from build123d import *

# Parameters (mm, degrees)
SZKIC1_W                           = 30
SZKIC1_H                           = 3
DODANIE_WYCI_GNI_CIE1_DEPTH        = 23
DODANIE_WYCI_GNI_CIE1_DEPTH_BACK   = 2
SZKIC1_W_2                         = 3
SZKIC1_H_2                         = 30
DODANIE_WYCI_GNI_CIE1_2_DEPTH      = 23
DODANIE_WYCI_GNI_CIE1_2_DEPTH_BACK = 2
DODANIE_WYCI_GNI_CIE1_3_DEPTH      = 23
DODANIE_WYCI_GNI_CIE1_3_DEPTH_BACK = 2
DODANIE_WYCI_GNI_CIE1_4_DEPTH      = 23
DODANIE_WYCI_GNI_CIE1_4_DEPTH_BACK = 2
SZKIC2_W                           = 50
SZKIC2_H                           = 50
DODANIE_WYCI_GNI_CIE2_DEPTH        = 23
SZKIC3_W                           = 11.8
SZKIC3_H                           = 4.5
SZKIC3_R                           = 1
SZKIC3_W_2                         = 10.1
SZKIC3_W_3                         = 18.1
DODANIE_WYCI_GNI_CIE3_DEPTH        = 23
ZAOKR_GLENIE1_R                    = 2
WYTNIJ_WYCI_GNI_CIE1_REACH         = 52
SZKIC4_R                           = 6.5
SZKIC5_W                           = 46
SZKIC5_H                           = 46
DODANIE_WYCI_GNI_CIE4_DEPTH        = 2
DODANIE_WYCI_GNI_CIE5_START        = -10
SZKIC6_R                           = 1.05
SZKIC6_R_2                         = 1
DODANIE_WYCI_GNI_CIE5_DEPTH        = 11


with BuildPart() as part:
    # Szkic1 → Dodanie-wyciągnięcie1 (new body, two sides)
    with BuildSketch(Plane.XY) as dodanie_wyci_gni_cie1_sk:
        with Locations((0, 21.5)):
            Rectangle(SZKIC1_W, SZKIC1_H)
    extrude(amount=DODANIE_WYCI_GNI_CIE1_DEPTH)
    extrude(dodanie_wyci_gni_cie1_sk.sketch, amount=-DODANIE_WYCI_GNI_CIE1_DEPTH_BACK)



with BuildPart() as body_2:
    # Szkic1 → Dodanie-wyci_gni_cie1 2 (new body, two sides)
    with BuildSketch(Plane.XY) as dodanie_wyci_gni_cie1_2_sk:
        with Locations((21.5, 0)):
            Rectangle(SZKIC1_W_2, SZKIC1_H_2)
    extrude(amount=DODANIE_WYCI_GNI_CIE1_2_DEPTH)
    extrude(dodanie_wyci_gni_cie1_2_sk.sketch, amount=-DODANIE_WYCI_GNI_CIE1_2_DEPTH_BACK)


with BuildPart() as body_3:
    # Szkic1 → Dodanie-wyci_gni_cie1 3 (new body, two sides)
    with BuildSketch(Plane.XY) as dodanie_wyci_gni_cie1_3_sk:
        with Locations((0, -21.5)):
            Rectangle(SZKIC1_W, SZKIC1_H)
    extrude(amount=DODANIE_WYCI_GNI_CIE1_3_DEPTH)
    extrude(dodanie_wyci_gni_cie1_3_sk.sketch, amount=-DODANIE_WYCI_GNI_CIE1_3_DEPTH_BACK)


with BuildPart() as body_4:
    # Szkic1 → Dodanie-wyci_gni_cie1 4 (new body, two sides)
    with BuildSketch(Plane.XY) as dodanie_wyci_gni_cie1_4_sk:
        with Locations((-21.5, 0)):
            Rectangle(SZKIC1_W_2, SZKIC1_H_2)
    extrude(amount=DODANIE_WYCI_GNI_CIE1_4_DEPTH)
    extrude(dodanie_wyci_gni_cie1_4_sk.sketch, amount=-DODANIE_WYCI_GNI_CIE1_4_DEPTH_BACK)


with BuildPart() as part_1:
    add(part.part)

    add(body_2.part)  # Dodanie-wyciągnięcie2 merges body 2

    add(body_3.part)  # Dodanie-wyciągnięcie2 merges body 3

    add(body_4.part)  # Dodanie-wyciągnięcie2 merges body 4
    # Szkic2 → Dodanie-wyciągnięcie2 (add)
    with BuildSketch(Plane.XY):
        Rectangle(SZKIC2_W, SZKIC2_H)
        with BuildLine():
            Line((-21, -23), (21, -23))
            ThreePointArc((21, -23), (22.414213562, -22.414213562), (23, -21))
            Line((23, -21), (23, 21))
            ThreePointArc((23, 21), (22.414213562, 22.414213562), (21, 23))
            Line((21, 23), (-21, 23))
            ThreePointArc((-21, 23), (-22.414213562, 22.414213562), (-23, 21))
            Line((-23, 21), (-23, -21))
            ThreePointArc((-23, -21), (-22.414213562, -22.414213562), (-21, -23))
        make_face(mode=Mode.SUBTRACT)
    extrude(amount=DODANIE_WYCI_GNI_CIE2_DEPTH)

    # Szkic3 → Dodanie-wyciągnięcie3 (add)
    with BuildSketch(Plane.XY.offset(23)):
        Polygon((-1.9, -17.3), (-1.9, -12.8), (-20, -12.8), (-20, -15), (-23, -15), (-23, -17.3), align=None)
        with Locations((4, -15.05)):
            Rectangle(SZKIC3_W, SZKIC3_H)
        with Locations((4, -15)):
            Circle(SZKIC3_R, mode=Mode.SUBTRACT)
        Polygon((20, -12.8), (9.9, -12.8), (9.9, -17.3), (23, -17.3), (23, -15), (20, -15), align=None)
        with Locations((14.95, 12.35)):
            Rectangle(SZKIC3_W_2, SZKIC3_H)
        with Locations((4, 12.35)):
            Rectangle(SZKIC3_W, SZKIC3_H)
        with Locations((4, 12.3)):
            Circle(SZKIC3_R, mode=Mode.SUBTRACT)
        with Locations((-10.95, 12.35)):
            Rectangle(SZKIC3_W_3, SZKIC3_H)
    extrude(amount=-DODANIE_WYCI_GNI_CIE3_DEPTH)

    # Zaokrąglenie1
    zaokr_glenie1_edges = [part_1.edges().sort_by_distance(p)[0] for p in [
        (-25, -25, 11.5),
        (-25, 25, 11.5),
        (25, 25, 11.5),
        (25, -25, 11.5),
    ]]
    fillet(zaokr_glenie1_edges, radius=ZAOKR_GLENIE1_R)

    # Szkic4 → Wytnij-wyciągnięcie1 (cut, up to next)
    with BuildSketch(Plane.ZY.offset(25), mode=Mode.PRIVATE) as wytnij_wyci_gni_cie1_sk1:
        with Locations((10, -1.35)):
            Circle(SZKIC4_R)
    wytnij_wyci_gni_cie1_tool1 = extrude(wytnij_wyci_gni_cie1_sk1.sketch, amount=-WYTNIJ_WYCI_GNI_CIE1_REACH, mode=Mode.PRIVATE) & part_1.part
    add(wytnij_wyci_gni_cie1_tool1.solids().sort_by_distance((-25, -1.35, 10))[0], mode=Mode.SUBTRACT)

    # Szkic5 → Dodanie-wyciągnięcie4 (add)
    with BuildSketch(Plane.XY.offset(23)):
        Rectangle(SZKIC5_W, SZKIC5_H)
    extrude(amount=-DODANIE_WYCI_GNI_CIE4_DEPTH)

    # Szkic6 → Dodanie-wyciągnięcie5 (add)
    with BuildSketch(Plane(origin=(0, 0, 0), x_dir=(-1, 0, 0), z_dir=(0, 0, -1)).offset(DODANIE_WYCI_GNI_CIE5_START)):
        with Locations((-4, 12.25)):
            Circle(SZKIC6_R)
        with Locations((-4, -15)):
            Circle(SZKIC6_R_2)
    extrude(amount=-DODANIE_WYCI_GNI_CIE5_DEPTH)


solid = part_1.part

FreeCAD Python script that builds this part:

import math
import FreeCAD as App
import Part
import Sketcher

V = App.Vector
Q = App.Units.Quantity


def edges_at(feature, points):
    """Names of the edges that pass closest to the given points."""
    edges = feature.Shape.Edges
    near = lambda p: min(range(len(edges)), key=lambda i: edges[i].distToShape(Part.Vertex(*p))[0])
    return sorted({f"Edge{near(p) + 1}" for p in points})


def add_polygon(sketch, points):
    """Adds a closed chain of lines whose ends are joined by coincident constraints."""
    first, n = sketch.GeometryCount, len(points)
    for a, b in zip(points, points[1:] + points[:1]):
        sketch.addGeometry(Part.LineSegment(App.Vector(*a, 0), App.Vector(*b, 0)), False)
    for i in range(n):
        sketch.addConstraint(Sketcher.Constraint("Coincident", first + i, 2, first + (i + 1) % n, 1))

doc = App.newDocument("Part")
params = doc.addObject("Spreadsheet::Sheet", "Params")
for row, (alias, value) in enumerate([
    ("sketch1_width", "30 mm"),
    ("sketch1_height", "3 mm"),
    ("pad1_length", "23 mm"),
    ("pad1_length2", "2 mm"),
    ("sketch2_width", "3 mm"),
    ("sketch2_height", "30 mm"),
    ("pad2_length", "23 mm"),
    ("pad2_length2", "2 mm"),
    ("sketch3_width", "30 mm"),
    ("sketch3_height", "3 mm"),
    ("pad3_length", "23 mm"),
    ("pad3_length2", "2 mm"),
    ("sketch4_width", "3 mm"),
    ("sketch4_height", "30 mm"),
    ("pad4_length", "23 mm"),
    ("pad4_length2", "2 mm"),
    ("sketch5_radius", "2 mm"),
    ("sketch5_width", "50 mm"),
    ("sketch5_width2", "42 mm"),
    ("pad5_length", "23 mm"),
    ("sketch6_diameter", "2 mm"),
    ("sketch6_width", "3 mm"),
    ("sketch6_width2", "46 mm"),
    ("sketch6_height", "2.2 mm"),
    ("sketch6_height2", "2.3 mm"),
    ("pad6_length", "23 mm"),
    ("fillet_radius", "2 mm"),
    ("sketch7_diameter", "13 mm"),
    ("sketch8_width", "46 mm"),
    ("pad7_length", "2 mm"),
    ("sketch9_diameter", "2 mm"),
    ("sketch9_diameter2", "2.1 mm"),
    ("pad8_length", "11 mm"),
], start=1):
    params.set(f"A{row}", alias)
    params.set(f"B{row}", "=" + value)
    params.setAlias(f"B{row}", alias)

body = doc.addObject("PartDesign::Body", "Body")

sketch1 = body.newObject("Sketcher::SketchObject", "Sketch")
sketch1.AttachmentSupport = (doc.getObject("XY_Plane"), [""])
sketch1.MapMode = "FlatFace"
add_polygon(sketch1, [(-15, 23), (-15, 20), (15, 20), (15, 23)])
sketch1.addConstraint([
    Sketcher.Constraint("Vertical", 0),
    Sketcher.Constraint("Horizontal", 1),
    Sketcher.Constraint("Vertical", 2),
    Sketcher.Constraint("Horizontal", 3),
    Sketcher.Constraint("DistanceX", 1, 1, 1, 2, Q("30 mm")),
    Sketcher.Constraint("DistanceY", 0, 2, 0, 1, Q("3 mm")),
    Sketcher.Constraint("DistanceX", 0, 2, -1, 1, Q("15 mm")),
    Sketcher.Constraint("DistanceY", -1, 1, 0, 2, Q("20 mm")),
])
sketch1.setExpression("Constraints[8]", "Params.sketch1_width")
sketch1.setExpression("Constraints[9]", "Params.sketch1_height")
pad1 = body.newObject("PartDesign::Pad", "Pad")
pad1.Profile = sketch1
pad1.Type = "TwoLengths"
pad1.setExpression("Length", "Params.pad1_length")
pad1.setExpression("Length2", "Params.pad1_length2")
body2 = doc.addObject("PartDesign::Body", "Body001")

sketch2 = body2.newObject("Sketcher::SketchObject", "Sketch001")
sketch2.AttachmentSupport = (doc.getObject("XY_Plane001"), [""])
sketch2.MapMode = "FlatFace"
add_polygon(sketch2, [(20, 15), (20, -15), (23, -15), (23, 15)])
sketch2.addConstraint([
    Sketcher.Constraint("Vertical", 0),
    Sketcher.Constraint("Horizontal", 1),
    Sketcher.Constraint("Vertical", 2),
    Sketcher.Constraint("Horizontal", 3),
    Sketcher.Constraint("DistanceX", 1, 1, 1, 2, Q("3 mm")),
    Sketcher.Constraint("DistanceY", 0, 2, 0, 1, Q("30 mm")),
    Sketcher.Constraint("DistanceX", -1, 1, 0, 2, Q("20 mm")),
    Sketcher.Constraint("DistanceY", 0, 2, -1, 1, Q("15 mm")),
])
sketch2.setExpression("Constraints[8]", "Params.sketch2_width")
sketch2.setExpression("Constraints[9]", "Params.sketch2_height")
pad2 = body2.newObject("PartDesign::Pad", "Pad001")
pad2.Profile = sketch2
pad2.Type = "TwoLengths"
pad2.setExpression("Length", "Params.pad2_length")
pad2.setExpression("Length2", "Params.pad2_length2")
body3 = doc.addObject("PartDesign::Body", "Body002")

sketch3 = body3.newObject("Sketcher::SketchObject", "Sketch002")
sketch3.AttachmentSupport = (doc.getObject("XY_Plane002"), [""])
sketch3.MapMode = "FlatFace"
add_polygon(sketch3, [(-15, -20), (-15, -23), (15, -23), (15, -20)])
sketch3.addConstraint([
    Sketcher.Constraint("Vertical", 0),
    Sketcher.Constraint("Horizontal", 1),
    Sketcher.Constraint("Vertical", 2),
    Sketcher.Constraint("Horizontal", 3),
    Sketcher.Constraint("DistanceX", 1, 1, 1, 2, Q("30 mm")),
    Sketcher.Constraint("DistanceY", 0, 2, 0, 1, Q("3 mm")),
    Sketcher.Constraint("DistanceX", 0, 2, -1, 1, Q("15 mm")),
    Sketcher.Constraint("DistanceY", 0, 2, -1, 1, Q("23 mm")),
])
sketch3.setExpression("Constraints[8]", "Params.sketch3_width")
sketch3.setExpression("Constraints[9]", "Params.sketch3_height")
pad3 = body3.newObject("PartDesign::Pad", "Pad002")
pad3.Profile = sketch3
pad3.Type = "TwoLengths"
pad3.setExpression("Length", "Params.pad3_length")
pad3.setExpression("Length2", "Params.pad3_length2")
body4 = doc.addObject("PartDesign::Body", "Body003")

sketch4 = body4.newObject("Sketcher::SketchObject", "Sketch003")
sketch4.AttachmentSupport = (doc.getObject("XY_Plane003"), [""])
sketch4.MapMode = "FlatFace"
add_polygon(sketch4, [(-23, 15), (-23, -15), (-20, -15), (-20, 15)])
sketch4.addConstraint([
    Sketcher.Constraint("Vertical", 0),
    Sketcher.Constraint("Horizontal", 1),
    Sketcher.Constraint("Vertical", 2),
    Sketcher.Constraint("Horizontal", 3),
    Sketcher.Constraint("DistanceX", 1, 1, 1, 2, Q("3 mm")),
    Sketcher.Constraint("DistanceY", 0, 2, 0, 1, Q("30 mm")),
    Sketcher.Constraint("DistanceX", 0, 2, -1, 1, Q("23 mm")),
    Sketcher.Constraint("DistanceY", 0, 2, -1, 1, Q("15 mm")),
])
sketch4.setExpression("Constraints[8]", "Params.sketch4_width")
sketch4.setExpression("Constraints[9]", "Params.sketch4_height")
pad4 = body4.newObject("PartDesign::Pad", "Pad003")
pad4.Profile = sketch4
pad4.Type = "TwoLengths"
pad4.setExpression("Length", "Params.pad4_length")
pad4.setExpression("Length2", "Params.pad4_length2")
body.AllowCompound = True
doc.recompute()

boolean = body.newObject("PartDesign::Boolean", "Boolean")
boolean.Type = "Fuse"
boolean.addObjects([body2])
doc.recompute()

boolean2 = body.newObject("PartDesign::Boolean", "Boolean001")
boolean2.Type = "Fuse"
boolean2.addObjects([body3])
doc.recompute()

boolean3 = body.newObject("PartDesign::Boolean", "Boolean002")
boolean3.Type = "Fuse"
boolean3.addObjects([body4])

sketch5 = body.newObject("Sketcher::SketchObject", "Sketch004")
sketch5.AttachmentSupport = (doc.getObject("XY_Plane"), [""])
sketch5.MapMode = "FlatFace"
add_polygon(sketch5, [(-25, 25), (-25, -25), (25, -25), (25, 25)])
sketch5.addGeometry(Part.LineSegment(V(21, -23, 0), V(-21, -23, 0)), False)
sketch5.addGeometry(Part.ArcOfCircle(Part.Circle(V(-21, -21, 0), V(0, 0, 1), 2), math.radians(-180), math.radians(-90)), False)
sketch5.addGeometry(Part.LineSegment(V(-23, -21, 0), V(-23, 21, 0)), False)
sketch5.addGeometry(Part.ArcOfCircle(Part.Circle(V(-21, 21, 0), V(0, 0, 1), 2), math.radians(90), math.radians(180)), False)
sketch5.addGeometry(Part.LineSegment(V(-21, 23, 0), V(21, 23, 0)), False)
sketch5.addGeometry(Part.ArcOfCircle(Part.Circle(V(21, 21, 0), V(0, 0, 1), 2), math.radians(0), math.radians(90)), False)
sketch5.addGeometry(Part.LineSegment(V(23, 21, 0), V(23, -21, 0)), False)
sketch5.addGeometry(Part.ArcOfCircle(Part.Circle(V(21, -21, 0), V(0, 0, 1), 2), math.radians(-90), math.radians(0)), False)
sketch5.addConstraint([
    Sketcher.Constraint("Tangent", 4, 2, 5, 2),
    Sketcher.Constraint("Tangent", 5, 1, 6, 1),
    Sketcher.Constraint("Tangent", 6, 2, 7, 2),
    Sketcher.Constraint("Tangent", 7, 1, 8, 1),
    Sketcher.Constraint("Tangent", 8, 2, 9, 2),
    Sketcher.Constraint("Tangent", 9, 1, 10, 1),
    Sketcher.Constraint("Tangent", 10, 2, 11, 2),
    Sketcher.Constraint("Tangent", 11, 1, 4, 1),
    Sketcher.Constraint("Vertical", 0),
    Sketcher.Constraint("Horizontal", 1),
    Sketcher.Constraint("Vertical", 2),
    Sketcher.Constraint("Horizontal", 3),
    Sketcher.Constraint("Horizontal", 4),
    Sketcher.Constraint("Vertical", 6),
    Sketcher.Constraint("Horizontal", 8),
    Sketcher.Constraint("Vertical", 10),
    Sketcher.Constraint("Equal", 5, 7),
    Sketcher.Constraint("Equal", 7, 9),
    Sketcher.Constraint("Equal", 9, 11),
    Sketcher.Constraint("Symmetric", 5, 3, 9, 3, -1, 1),
    Sketcher.Constraint("Symmetric", 0, 2, 2, 2, -1, 1),
    Sketcher.Constraint("Equal", 3, 0),
    Sketcher.Constraint("Equal", 8, 6),
    Sketcher.Constraint("Radius", 5, Q("2 mm")),
    Sketcher.Constraint("DistanceX", 1, 1, 1, 2, Q("50 mm")),
    Sketcher.Constraint("DistanceX", 4, 2, 4, 1, Q("42 mm")),
])
sketch5.setExpression("Constraints[27]", "Params.sketch5_radius")
sketch5.setExpression("Constraints[28]", "Params.sketch5_width")
sketch5.setExpression("Constraints[29]", "Params.sketch5_width2")
pad5 = body.newObject("PartDesign::Pad", "Pad004")
pad5.Profile = sketch5
pad5.setExpression("Length", "Params.pad5_length")

sketch6 = body.newObject("Sketcher::SketchObject", "Sketch005")
sketch6.AttachmentSupport = (doc.getObject("XY_Plane"), [""])
sketch6.MapMode = "FlatFace"
sketch6.AttachmentOffset = App.Placement(V(0, 0, 23), App.Rotation())
add_polygon(sketch6, [(-20, -12.8), (-20, -15), (-23, -15), (-23, -17.3), (23, -17.3), (23, -15), (20, -15), (20, -12.8)])
sketch6.addGeometry(Part.Circle(V(4, -15, 0), V(0, 0, 1), 1), False)
add_polygon(sketch6, [(20, 10.1), (20, 14.6), (-20, 14.6), (-20, 10.1)])
sketch6.addGeometry(Part.Circle(V(4, 12.3, 0), V(0, 0, 1), 1), False)
sketch6.addConstraint([
    Sketcher.Constraint("Vertical", 0),
    Sketcher.Constraint("Horizontal", 1),
    Sketcher.Constraint("Vertical", 2),
    Sketcher.Constraint("Horizontal", 3),
    Sketcher.Constraint("Vertical", 4),
    Sketcher.Constraint("Horizontal", 5),
    Sketcher.Constraint("Vertical", 6),
    Sketcher.Constraint("Horizontal", 7),
    Sketcher.Constraint("Vertical", 9),
    Sketcher.Constraint("Horizontal", 10),
    Sketcher.Constraint("Vertical", 11),
    Sketcher.Constraint("Horizontal", 12),
    Sketcher.Constraint("Equal", 8, 13),
    Sketcher.Constraint("Symmetric", 1, 2, 4, 2, -2),
    Sketcher.Constraint("Horizontal", 8, 3, 0, 2),
    Sketcher.Constraint("Vertical", 8, 3, 13, 3),
    Sketcher.Constraint("Vertical", 6, 2, 9, 2),
    Sketcher.Constraint("Vertical", 7, 2, 10, 2),
    Sketcher.Constraint("Equal", 1, 5),
    Sketcher.Constraint("Diameter", 8, Q("2 mm")),
    Sketcher.Constraint("DistanceX", 1, 2, 1, 1, Q("3 mm")),
    Sketcher.Constraint("DistanceX", 3, 1, 3, 2, Q("46 mm")),
    Sketcher.Constraint("DistanceY", 0, 2, 0, 1, Q("2.2 mm")),
    Sketcher.Constraint("DistanceY", 2, 2, 2, 1, Q("2.3 mm")),
    Sketcher.Constraint("DistanceY", 9, 1, 9, 2, Q("4.5 mm")),
    Sketcher.Constraint("DistanceX", -1, 1, 8, 3, Q("4 mm")),
    Sketcher.Constraint("DistanceY", 8, 3, -1, 1, Q("15 mm")),
    Sketcher.Constraint("DistanceY", -1, 1, 13, 3, Q("12.3 mm")),
    Sketcher.Constraint("DistanceY", -1, 1, 9, 2, Q("14.6 mm")),
])
sketch6.setExpression("Constraints[31]", "Params.sketch6_diameter")
sketch6.setExpression("Constraints[32]", "Params.sketch6_width")
sketch6.setExpression("Constraints[33]", "Params.sketch6_width2")
sketch6.setExpression("Constraints[34]", "Params.sketch6_height")
sketch6.setExpression("Constraints[35]", "Params.sketch6_height2")
pad6 = body.newObject("PartDesign::Pad", "Pad005")
pad6.Profile = sketch6
pad6.setExpression("Length", "Params.pad6_length")
pad6.Reversed = True
doc.recompute()

fillet = body.newObject("PartDesign::Fillet", "Fillet")
fillet.Base = (pad6, edges_at(pad6, [
    (-25, -25, 11.5),
    (-25, 25, 11.5),
    (25, 25, 11.5),
    (25, -25, 11.5),
]))
fillet.setExpression("Radius", "Params.fillet_radius")

sketch7 = body.newObject("Sketcher::SketchObject", "Sketch006")
sketch7.AttachmentSupport = (doc.getObject("YZ_Plane"), [""])
sketch7.MapMode = "FlatFace"
sketch7.AttachmentOffset = App.Placement(V(0, 0, -25), App.Rotation())
sketch7.addGeometry(Part.Circle(V(-1, 10, 0), V(0, 0, 1), 6), False)
sketch7.addConstraint([
    Sketcher.Constraint("Diameter", 0, Q("13 mm")),
    Sketcher.Constraint("DistanceY", -1, 1, 0, 3, Q("10 mm")),
    Sketcher.Constraint("DistanceX", 0, 3, -1, 1, Q("1.35 mm")),
])
sketch7.setExpression("Constraints[0]", "Params.sketch7_diameter")
pocket1 = body.newObject("PartDesign::Pocket", "Pocket")
pocket1.Profile = sketch7
pocket1.Type = "UpToFirst"
pocket1.Reversed = True

sketch8 = body.newObject("Sketcher::SketchObject", "Sketch007")
sketch8.AttachmentSupport = (doc.getObject("XY_Plane"), [""])
sketch8.MapMode = "FlatFace"
sketch8.AttachmentOffset = App.Placement(V(0, 0, 23), App.Rotation())
add_polygon(sketch8, [(-23, 23), (-23, -23), (23, -23), (23, 23)])
sketch8.addConstraint([
    Sketcher.Constraint("Vertical", 0),
    Sketcher.Constraint("Horizontal", 1),
    Sketcher.Constraint("Vertical", 2),
    Sketcher.Constraint("Horizontal", 3),
    Sketcher.Constraint("Symmetric", 0, 2, 2, 2, -1, 1),
    Sketcher.Constraint("Equal", 3, 0),
    Sketcher.Constraint("DistanceX", 1, 1, 1, 2, Q("46 mm")),
])
sketch8.setExpression("Constraints[10]", "Params.sketch8_width")
pad7 = body.newObject("PartDesign::Pad", "Pad006")
pad7.Profile = sketch8
pad7.setExpression("Length", "Params.pad7_length")
pad7.Reversed = True

sketch9 = body.newObject("Sketcher::SketchObject", "Sketch008")
sketch9.AttachmentSupport = (doc.getObject("XY_Plane"), [""])
sketch9.MapMode = "FlatFace"
sketch9.AttachmentOffset = App.Placement(V(0, 0, 10), App.Rotation())
sketch9.addGeometry([
    Part.Circle(V(4, 12.2, 0), V(0, 0, 1), 1.1),
    Part.Circle(V(4, -15, 0), V(0, 0, 1), 1),
], False)
sketch9.addConstraint([
    Sketcher.Constraint("Vertical", 0, 3, 1, 3),
    Sketcher.Constraint("Diameter", 1, Q("2 mm")),
    Sketcher.Constraint("Diameter", 0, Q("2.1 mm")),
    Sketcher.Constraint("DistanceX", -1, 1, 0, 3, Q("4 mm")),
    Sketcher.Constraint("DistanceY", 1, 3, -1, 1, Q("15 mm")),
    Sketcher.Constraint("DistanceY", -1, 1, 0, 3, Q("12.25 mm")),
])
sketch9.setExpression("Constraints[1]", "Params.sketch9_diameter")
sketch9.setExpression("Constraints[2]", "Params.sketch9_diameter2")
pad8 = body.newObject("PartDesign::Pad", "Pad007")
pad8.Profile = sketch9
pad8.setExpression("Length", "Params.pad8_length")

doc.recompute()
